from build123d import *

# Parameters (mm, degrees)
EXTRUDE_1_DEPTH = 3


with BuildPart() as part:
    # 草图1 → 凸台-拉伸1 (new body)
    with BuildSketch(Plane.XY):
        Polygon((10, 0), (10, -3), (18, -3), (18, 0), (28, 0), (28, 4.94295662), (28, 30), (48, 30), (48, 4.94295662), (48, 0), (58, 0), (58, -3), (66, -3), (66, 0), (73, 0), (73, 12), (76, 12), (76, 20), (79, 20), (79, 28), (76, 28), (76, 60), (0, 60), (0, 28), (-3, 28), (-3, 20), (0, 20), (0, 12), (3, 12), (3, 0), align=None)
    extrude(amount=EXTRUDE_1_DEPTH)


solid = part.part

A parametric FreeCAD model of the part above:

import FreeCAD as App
import Part
import Sketcher

V = App.Vector


def add_polygon(sketch, points):
    """Adds a closed chain of lines whose ends are joined by coincident constraints."""
    first, n = sketch.GeometryCount, len(points)
    for a, b in zip(points, points[1:] + points[:1]):
        sketch.addGeometry(Part.LineSegment(App.Vector(*a, 0), App.Vector(*b, 0)), False)
    for i in range(n):
        sketch.addConstraint(Sketcher.Constraint("Coincident", first + i, 2, first + (i + 1) % n, 1))

doc = App.newDocument("Part")
body = doc.addObject("PartDesign::Body", "Body")

sketch1 = body.newObject("Sketcher::SketchObject", "Sketch")
sketch1.AttachmentSupport = (doc.getObject("XY_Plane"), [""])
sketch1.MapMode = "FlatFace"
add_polygon(sketch1, [(10, 0), (10, -3), (18, -3), (18, 0), (28, 0), (28, 30), (48, 30), (48, 0), (58, 0), (58, -3), (66, -3), (66, 0), (73, 0), (73, 12), (76, 12), (76, 20), (79, 20), (79, 28), (76, 28), (76, 60), (0, 60), (0, 28), (-3, 28), (-3, 20), (0, 20), (0, 12), (3, 12), (3, 0)])
sketch1.addConstraint(Sketcher.Constraint("Vertical", 0))
sketch1.addConstraint(Sketcher.Constraint("Horizontal", 1))
sketch1.addConstraint(Sketcher.Constraint("Vertical", 2))
sketch1.addConstraint(Sketcher.Constraint("Horizontal", 3))
sketch1.addConstraint(Sketcher.Constraint("Vertical", 4))
sketch1.addConstraint(Sketcher.Constraint("Horizontal", 5))
sketch1.addConstraint(Sketcher.Constraint("Vertical", 6))
sketch1.addConstraint(Sketcher.Constraint("Horizontal", 7))
sketch1.addConstraint(Sketcher.Constraint("Vertical", 8))
sketch1.addConstraint(Sketcher.Constraint("Horizontal", 9))
sketch1.addConstraint(Sketcher.Constraint("Vertical", 10))
sketch1.addConstraint(Sketcher.Constraint("Horizontal", 11))
sketch1.addConstraint(Sketcher.Constraint("Vertical", 12))
sketch1.addConstraint(Sketcher.Constraint("Horizontal", 13))
sketch1.addConstraint(Sketcher.Constraint("Vertical", 14))
sketch1.addConstraint(Sketcher.Constraint("Horizontal", 15))
sketch1.addConstraint(Sketcher.Constraint("Vertical", 16))
sketch1.addConstraint(Sketcher.Constraint("Horizontal", 17))
sketch1.addConstraint(Sketcher.Constraint("Vertical", 18))
sketch1.addConstraint(Sketcher.Constraint("Horizontal", 19))
sketch1.addConstraint(Sketcher.Constraint("Vertical", 20))
sketch1.addConstraint(Sketcher.Constraint("Horizontal", 21))
sketch1.addConstraint(Sketcher.Constraint("Vertical", 22))
sketch1.addConstraint(Sketcher.Constraint("Horizontal", 23))
sketch1.addConstraint(Sketcher.Constraint("Vertical", 24))
sketch1.addConstraint(Sketcher.Constraint("Horizontal", 25))
sketch1.addConstraint(Sketcher.Constraint("Vertical", 26))
sketch1.addConstraint(Sketcher.Constraint("Horizontal", 27))
sketch1.addConstraint(Sketcher.Constraint("PointOnObject", 2, 2, -1))
sketch1.addConstraint(Sketcher.Constraint("PointOnObject", 6, 2, -1))
sketch1.addConstraint(Sketcher.Constraint("PointOnObject", 10, 2, -1))
sketch1.addConstraint(Sketcher.Constraint("PointOnObject", 19, 2, -2))
sketch1.addConstraint(Sketcher.Constraint("PointOnObject", 23, 2, -2))
sketch1.addConstraint(Sketcher.Constraint("PointOnObject", 26, 2, -1))
sketch1.addConstraint(Sketcher.Constraint("Horizontal", 1, 2, 8, 2))
sketch1.addConstraint(Sketcher.Constraint("Horizontal", 17, 2, 20, 2))
sketch1.addConstraint(Sketcher.Constraint("Horizontal", 15, 2, 22, 2))
sketch1.addConstraint(Sketcher.Constraint("Horizontal", 13, 2, 24, 2))
sketch1.addConstraint(Sketcher.Constraint("Vertical", 14, 2, 17, 2))
sketch1.addConstraint(Sketcher.Constraint("Equal", 3, 7))
sketch1.addConstraint(Sketcher.Constraint("Equal", 1, 9))
sketch1.addConstraint(Sketcher.Constraint("Equal", 13, 15))
sketch1.addConstraint(Sketcher.Constraint("Equal", 17, 21))
sketch1.addConstraint(Sketcher.Constraint("Equal", 23, 25))
sketch1.addConstraint(Sketcher.Constraint("Equal", 11, 27))
sketch1.addConstraint(Sketcher.Constraint("Equal", 25, 0))
sketch1.addConstraint(Sketcher.Constraint("Equal", 9, 14))
sketch1.addConstraint(Sketcher.Constraint("Equal", 14, 16))
sketch1.addConstraint(Sketcher.Constraint("DistanceX", 1, 1, 1, 2, 8.0))
sketch1.addConstraint(Sketcher.Constraint("DistanceX", 3, 1, 3, 2, 10.0))
sketch1.addConstraint(Sketcher.Constraint("DistanceX", 5, 1, 5, 2, 20.0))
sketch1.addConstraint(Sketcher.Constraint("DistanceX", 11, 1, 11, 2, 7.0))
sketch1.addConstraint(Sketcher.Constraint("DistanceX", 13, 1, 13, 2, 3.0))
sketch1.addConstraint(Sketcher.Constraint("DistanceY", 4, 1, 4, 2, 30.0))
sketch1.addConstraint(Sketcher.Constraint("DistanceY", 12, 1, 12, 2, 12.0))
sketch1.addConstraint(Sketcher.Constraint("DistanceY", 18, 1, 18, 2, 32.0))
pad1 = body.newObject("PartDesign::Pad", "Pad")
pad1.Profile = sketch1
pad1.Length = 3

doc.recompute()
